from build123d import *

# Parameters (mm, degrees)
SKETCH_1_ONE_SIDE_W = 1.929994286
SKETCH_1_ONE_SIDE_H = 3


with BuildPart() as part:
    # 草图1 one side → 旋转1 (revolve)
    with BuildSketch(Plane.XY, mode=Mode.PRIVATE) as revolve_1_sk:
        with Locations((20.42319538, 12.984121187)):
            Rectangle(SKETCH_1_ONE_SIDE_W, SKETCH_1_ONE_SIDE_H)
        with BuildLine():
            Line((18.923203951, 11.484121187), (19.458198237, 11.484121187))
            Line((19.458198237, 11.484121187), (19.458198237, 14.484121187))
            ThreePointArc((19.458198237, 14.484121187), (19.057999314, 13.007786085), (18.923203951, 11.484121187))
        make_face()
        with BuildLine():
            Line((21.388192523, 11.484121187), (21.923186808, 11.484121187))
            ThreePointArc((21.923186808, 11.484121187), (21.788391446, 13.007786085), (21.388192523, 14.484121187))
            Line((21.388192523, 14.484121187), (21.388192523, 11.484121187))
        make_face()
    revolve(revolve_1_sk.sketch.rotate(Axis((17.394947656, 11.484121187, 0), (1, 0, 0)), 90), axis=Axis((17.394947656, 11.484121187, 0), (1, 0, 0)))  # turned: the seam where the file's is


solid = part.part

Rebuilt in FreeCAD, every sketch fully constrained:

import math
import FreeCAD as App
import Part
import Sketcher
from FreeCAD import Vector

doc = App.newDocument("Part")
body = doc.addObject("PartDesign::Body", "Body")

# Sketch on XY plane
sketch1 = doc.addObject("Sketcher::SketchObject", "Sketch")
body.addObject(sketch1)
sketch1.AttachmentSupport = (doc.XY_Plane, [""])
sketch1.MapMode = "FlatFace"
sketch1.addGeometry([
    Part.LineSegment(Vector(21.4, 14.5, 0), Vector(19.5, 14.5, 0)),
    Part.ArcOfCircle(Part.Circle(Vector(27.6, 11.5, 0), Vector(0, 0, 1), 8.7), math.radians(160), math.radians(180)),
    Part.LineSegment(Vector(18.9, 11.5, 0), Vector(21.9, 11.5, 0)),
    Part.ArcOfCircle(Part.Circle(Vector(13.2, 11.5, 0), Vector(0, 0, 1), 8.7), math.radians(0), math.radians(20)),
], False)
sketch1.addGeometry(Part.LineSegment(Vector(13.2, 11.5, 0), Vector(27.6, 11.5, 0)), True)  # axis
sketch1.addConstraint([
    Sketcher.Constraint("Coincident", 0, 2, 1, 1),
    Sketcher.Constraint("Coincident", 1, 2, 2, 1),
    Sketcher.Constraint("Coincident", 2, 2, 3, 1),
    Sketcher.Constraint("Coincident", 3, 2, 0, 1),
    Sketcher.Constraint("Horizontal", 0),
    Sketcher.Constraint("Horizontal", 2),
    Sketcher.Constraint("Horizontal", 4),
    Sketcher.Constraint("Coincident", 4, 1, 3, 3),
    Sketcher.Constraint("Coincident", 4, 2, 1, 3),
    Sketcher.Constraint("Equal", 1, 3),
    Sketcher.Constraint("Horizontal", 3, 3, 1, 2),
    Sketcher.Constraint("DistanceY", 3, 3, 0, 2, 3.0),
    Sketcher.Constraint("Radius", 1, 8.678802),
    Sketcher.Constraint("DistanceX", 4, 1, 4, 2, 14.357621),
    Sketcher.Constraint("DistanceX", -1, 1, 0, 2, 19.458198),
    Sketcher.Constraint("DistanceY", -1, 1, 1, 3, 11.484121),
])
revolution = doc.addObject("PartDesign::Revolution", "Revolution")
body.addObject(revolution)
revolution.Profile = sketch1
revolution.ReferenceAxis = (sketch1, ["Axis0"])
revolution.Angle = 360

doc.recompute()
